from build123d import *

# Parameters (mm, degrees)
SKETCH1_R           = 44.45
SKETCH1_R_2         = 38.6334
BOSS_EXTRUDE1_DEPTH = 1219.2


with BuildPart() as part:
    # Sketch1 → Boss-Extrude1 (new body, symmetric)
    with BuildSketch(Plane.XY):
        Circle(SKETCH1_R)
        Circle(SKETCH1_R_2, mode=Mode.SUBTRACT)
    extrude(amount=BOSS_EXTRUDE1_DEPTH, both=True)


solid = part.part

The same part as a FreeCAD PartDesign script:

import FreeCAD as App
import Part
import Sketcher

V = App.Vector
Q = App.Units.Quantity

doc = App.newDocument("Part")
body = doc.addObject("PartDesign::Body", "Body")

sketch1 = body.newObject("Sketcher::SketchObject", "Sketch")
sketch1.AttachmentSupport = (doc.getObject("XY_Plane"), [""])
sketch1.MapMode = "FlatFace"
sketch1.addGeometry([
    Part.Circle(V(0, 0, 0), V(0, 0, 1), 44.45),
    Part.Circle(V(0, 0, 0), V(0, 0, 1), 38.6334),
], False)
sketch1.addConstraint([
    Sketcher.Constraint("Coincident", 0, 3, -1, 1),
    Sketcher.Constraint("Coincident", 1, 3, -1, 1),
    Sketcher.Constraint("Diameter", 0, Q("3.5 in")),
    Sketcher.Constraint("Diameter", 1, Q("3.042 in")),
])
pad1 = body.newObject("PartDesign::Pad", "Pad")
pad1.Profile = sketch1
pad1.Length = Q("96 in")
pad1.Midplane = True

doc.recompute()
